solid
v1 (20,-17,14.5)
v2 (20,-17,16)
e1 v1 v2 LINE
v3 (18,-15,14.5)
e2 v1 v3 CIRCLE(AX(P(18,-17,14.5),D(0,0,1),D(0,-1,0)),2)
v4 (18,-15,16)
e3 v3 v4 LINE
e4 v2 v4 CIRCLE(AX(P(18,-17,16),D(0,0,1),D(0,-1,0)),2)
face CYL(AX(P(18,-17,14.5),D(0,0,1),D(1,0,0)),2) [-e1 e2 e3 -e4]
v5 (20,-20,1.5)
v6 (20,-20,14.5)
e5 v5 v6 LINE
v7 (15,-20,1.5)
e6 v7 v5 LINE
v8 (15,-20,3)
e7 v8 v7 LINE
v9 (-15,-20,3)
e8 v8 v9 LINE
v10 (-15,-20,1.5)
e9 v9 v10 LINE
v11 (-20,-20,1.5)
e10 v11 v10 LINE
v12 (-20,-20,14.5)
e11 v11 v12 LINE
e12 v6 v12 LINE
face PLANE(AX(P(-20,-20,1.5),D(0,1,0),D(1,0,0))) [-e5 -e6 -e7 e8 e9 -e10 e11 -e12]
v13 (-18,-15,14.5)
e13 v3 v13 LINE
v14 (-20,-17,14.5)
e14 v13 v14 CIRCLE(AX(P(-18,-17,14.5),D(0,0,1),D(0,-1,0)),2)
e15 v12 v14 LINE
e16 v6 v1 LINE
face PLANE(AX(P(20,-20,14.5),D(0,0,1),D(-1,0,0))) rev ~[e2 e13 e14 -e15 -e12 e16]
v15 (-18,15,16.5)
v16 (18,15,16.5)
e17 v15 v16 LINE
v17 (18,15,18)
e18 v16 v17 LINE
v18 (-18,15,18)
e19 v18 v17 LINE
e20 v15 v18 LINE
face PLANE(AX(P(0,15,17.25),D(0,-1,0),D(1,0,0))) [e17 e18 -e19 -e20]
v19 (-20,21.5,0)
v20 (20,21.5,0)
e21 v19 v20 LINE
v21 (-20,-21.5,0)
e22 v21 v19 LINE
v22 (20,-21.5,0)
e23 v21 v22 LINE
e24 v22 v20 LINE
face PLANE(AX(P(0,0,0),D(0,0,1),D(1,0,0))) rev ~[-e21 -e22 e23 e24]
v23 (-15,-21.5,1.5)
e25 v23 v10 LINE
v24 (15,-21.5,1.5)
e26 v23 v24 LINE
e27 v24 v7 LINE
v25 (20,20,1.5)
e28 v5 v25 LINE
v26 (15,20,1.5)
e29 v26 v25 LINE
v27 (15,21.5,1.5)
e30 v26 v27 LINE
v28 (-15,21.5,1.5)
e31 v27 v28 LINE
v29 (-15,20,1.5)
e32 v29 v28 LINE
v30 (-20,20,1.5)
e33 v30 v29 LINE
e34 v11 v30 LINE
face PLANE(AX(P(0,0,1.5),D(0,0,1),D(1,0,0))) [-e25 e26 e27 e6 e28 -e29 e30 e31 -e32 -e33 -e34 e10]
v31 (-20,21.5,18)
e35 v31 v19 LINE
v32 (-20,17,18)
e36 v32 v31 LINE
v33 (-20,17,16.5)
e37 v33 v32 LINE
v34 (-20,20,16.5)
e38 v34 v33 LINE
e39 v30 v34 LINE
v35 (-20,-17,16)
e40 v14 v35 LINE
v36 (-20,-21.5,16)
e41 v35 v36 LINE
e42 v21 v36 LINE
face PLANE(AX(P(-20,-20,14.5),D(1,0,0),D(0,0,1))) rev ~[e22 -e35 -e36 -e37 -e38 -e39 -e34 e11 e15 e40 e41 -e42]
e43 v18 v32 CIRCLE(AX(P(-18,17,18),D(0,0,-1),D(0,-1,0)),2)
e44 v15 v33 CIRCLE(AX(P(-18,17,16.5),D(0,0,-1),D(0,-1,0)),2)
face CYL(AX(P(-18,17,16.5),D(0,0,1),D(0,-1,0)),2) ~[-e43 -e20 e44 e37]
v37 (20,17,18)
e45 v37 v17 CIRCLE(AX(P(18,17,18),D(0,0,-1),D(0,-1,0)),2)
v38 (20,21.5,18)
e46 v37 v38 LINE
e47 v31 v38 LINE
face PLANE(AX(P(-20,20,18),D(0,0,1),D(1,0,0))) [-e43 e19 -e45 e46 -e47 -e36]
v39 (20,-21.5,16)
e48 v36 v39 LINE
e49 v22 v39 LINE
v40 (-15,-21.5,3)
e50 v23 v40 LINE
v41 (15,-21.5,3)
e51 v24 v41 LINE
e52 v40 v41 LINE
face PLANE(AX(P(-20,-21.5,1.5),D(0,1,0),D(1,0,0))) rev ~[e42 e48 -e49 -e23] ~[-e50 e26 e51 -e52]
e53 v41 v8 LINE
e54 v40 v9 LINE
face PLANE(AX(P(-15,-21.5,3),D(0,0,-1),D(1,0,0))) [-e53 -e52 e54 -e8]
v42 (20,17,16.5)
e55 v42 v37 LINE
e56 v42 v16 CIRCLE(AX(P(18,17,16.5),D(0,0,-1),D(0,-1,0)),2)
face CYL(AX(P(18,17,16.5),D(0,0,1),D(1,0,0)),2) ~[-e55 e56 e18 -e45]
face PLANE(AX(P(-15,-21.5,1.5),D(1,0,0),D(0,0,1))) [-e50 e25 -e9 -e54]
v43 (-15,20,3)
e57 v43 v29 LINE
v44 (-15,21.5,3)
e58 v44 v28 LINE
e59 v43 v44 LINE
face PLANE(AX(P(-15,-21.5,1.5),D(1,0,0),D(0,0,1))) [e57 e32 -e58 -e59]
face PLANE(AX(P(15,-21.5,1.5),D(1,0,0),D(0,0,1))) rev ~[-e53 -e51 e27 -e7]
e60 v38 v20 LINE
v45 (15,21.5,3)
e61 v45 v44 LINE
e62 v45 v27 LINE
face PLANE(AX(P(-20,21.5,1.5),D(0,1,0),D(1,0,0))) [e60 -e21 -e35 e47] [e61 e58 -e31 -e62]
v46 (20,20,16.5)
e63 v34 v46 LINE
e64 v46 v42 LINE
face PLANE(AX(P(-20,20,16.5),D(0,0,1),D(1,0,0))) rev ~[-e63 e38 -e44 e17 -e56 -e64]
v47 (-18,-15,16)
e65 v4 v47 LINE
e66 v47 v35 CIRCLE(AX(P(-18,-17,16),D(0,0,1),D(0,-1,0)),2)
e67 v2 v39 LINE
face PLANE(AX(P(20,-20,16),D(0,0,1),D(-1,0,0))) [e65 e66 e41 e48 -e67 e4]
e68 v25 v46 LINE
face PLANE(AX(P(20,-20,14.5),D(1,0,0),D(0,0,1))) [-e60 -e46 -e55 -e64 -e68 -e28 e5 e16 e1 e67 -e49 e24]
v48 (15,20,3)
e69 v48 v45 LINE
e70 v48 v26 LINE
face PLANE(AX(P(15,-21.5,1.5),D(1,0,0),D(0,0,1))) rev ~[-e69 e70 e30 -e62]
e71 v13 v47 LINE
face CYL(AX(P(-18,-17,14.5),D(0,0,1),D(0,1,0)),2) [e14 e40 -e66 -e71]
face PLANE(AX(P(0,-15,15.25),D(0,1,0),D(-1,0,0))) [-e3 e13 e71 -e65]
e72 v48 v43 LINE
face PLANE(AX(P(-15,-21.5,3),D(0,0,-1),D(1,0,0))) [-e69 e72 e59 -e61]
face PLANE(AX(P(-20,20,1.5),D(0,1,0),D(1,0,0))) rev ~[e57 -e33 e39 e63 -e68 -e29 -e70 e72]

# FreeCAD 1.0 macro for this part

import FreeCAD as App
import Part
import Sketcher
from FreeCAD import Vector


def edges_at(feature, points):
    """Names of the edges that pass closest to the given points."""
    edges = feature.Shape.Edges
    near = lambda p: min(range(len(edges)), key=lambda i: edges[i].distToShape(Part.Vertex(*p))[0])
    return sorted({f"Edge{near(p) + 1}" for p in points})

doc = App.newDocument("Part")
params = doc.addObject("Spreadsheet::Sheet", "Params")
for row, (alias, value) in enumerate([
    ("sketch1_width", "40 mm"),
    ("sketch1_height", "43 mm"),
    ("pad1_length", "1.5 mm"),
    ("sketch2_width", "40 mm"),
    ("sketch2_height", "1.5 mm"),
    ("pad2_length", "14.5 mm"),
    ("sketch3_width", "40 mm"),
    ("sketch3_height", "1.5 mm"),
    ("pad3_length", "16.5 mm"),
    ("sketch4_width", "40 mm"),
    ("sketch4_height", "1.5 mm"),
    ("pad4_length", "5 mm"),
    ("sketch5_width", "40 mm"),
    ("sketch5_height", "1.5 mm"),
    ("pad5_length", "5 mm"),
    ("sketch6_width", "30 mm"),
    ("sketch6_height", "1.5 mm"),
    ("pocket1_length", "44 mm"),
    ("fillet_radius", "2 mm"),
], start=1):
    params.set(f"A{row}", alias)
    params.set(f"B{row}", "=" + value)
    params.setAlias(f"B{row}", alias)

body = doc.addObject("PartDesign::Body", "Body")

sketch1 = body.newObject("Sketcher::SketchObject", "Sketch")
sketch1.AttachmentSupport = (doc.getObject("XY_Plane"), [""])
sketch1.MapMode = "FlatFace"
sketch1.addGeometry(Part.LineSegment(Vector(-20, 21.5, 0), Vector(-20, -21.5, 0)), False)
sketch1.addGeometry(Part.LineSegment(Vector(-20, -21.5, 0), Vector(20, -21.5, 0)), False)
sketch1.addGeometry(Part.LineSegment(Vector(20, -21.5, 0), Vector(20, 21.5, 0)), False)
sketch1.addGeometry(Part.LineSegment(Vector(20, 21.5, 0), Vector(-20, 21.5, 0)), False)
sketch1.addConstraint(Sketcher.Constraint("Coincident", 0, 2, 1, 1))
sketch1.addConstraint(Sketcher.Constraint("Coincident", 1, 2, 2, 1))
sketch1.addConstraint(Sketcher.Constraint("Coincident", 2, 2, 3, 1))
sketch1.addConstraint(Sketcher.Constraint("Coincident", 3, 2, 0, 1))
sketch1.addConstraint(Sketcher.Constraint("Vertical", 0))
sketch1.addConstraint(Sketcher.Constraint("Horizontal", 1))
sketch1.addConstraint(Sketcher.Constraint("Vertical", 2))
sketch1.addConstraint(Sketcher.Constraint("Horizontal", 3))
sketch1.addConstraint(Sketcher.Constraint("Symmetric", 0, 2, 2, 2, -1, 1))
sketch1.addConstraint(Sketcher.Constraint("DistanceX", 1, 1, 1, 2, 40.0))
sketch1.addConstraint(Sketcher.Constraint("DistanceY", 0, 2, 0, 1, 43.0))
sketch1.setExpression("Constraints[9]", "Params.sketch1_width")
sketch1.setExpression("Constraints[10]", "Params.sketch1_height")
pad1 = body.newObject("PartDesign::Pad", "Pad")
pad1.Profile = sketch1
pad1.setExpression("Length", "Params.pad1_length")

sketch2 = body.newObject("Sketcher::SketchObject", "Sketch001")
sketch2.AttachmentSupport = (doc.getObject("XY_Plane"), [""])
sketch2.MapMode = "FlatFace"
sketch2.AttachmentOffset = App.Placement(Vector(0, 0, 1.5), App.Rotation())
sketch2.addGeometry(Part.LineSegment(Vector(-20, -20, 0), Vector(-20, -21.5, 0)), False)
sketch2.addGeometry(Part.LineSegment(Vector(-20, -21.5, 0), Vector(20, -21.5, 0)), False)
sketch2.addGeometry(Part.LineSegment(Vector(20, -21.5, 0), Vector(20, -20, 0)), False)
sketch2.addGeometry(Part.LineSegment(Vector(20, -20, 0), Vector(-20, -20, 0)), False)
sketch2.addConstraint(Sketcher.Constraint("Coincident", 0, 2, 1, 1))
sketch2.addConstraint(Sketcher.Constraint("Coincident", 1, 2, 2, 1))
sketch2.addConstraint(Sketcher.Constraint("Coincident", 2, 2, 3, 1))
sketch2.addConstraint(Sketcher.Constraint("Coincident", 3, 2, 0, 1))
sketch2.addConstraint(Sketcher.Constraint("Vertical", 0))
sketch2.addConstraint(Sketcher.Constraint("Horizontal", 1))
sketch2.addConstraint(Sketcher.Constraint("Vertical", 2))
sketch2.addConstraint(Sketcher.Constraint("Horizontal", 3))
sketch2.addConstraint(Sketcher.Constraint("DistanceX", 1, 1, 1, 2, 40.0))
sketch2.addConstraint(Sketcher.Constraint("DistanceY", 0, 2, 0, 1, 1.5))
sketch2.addConstraint(Sketcher.Constraint("DistanceX", 0, 2, -1, 1, 20.0))
sketch2.addConstraint(Sketcher.Constraint("DistanceY", 2, 2, -1, 1, 20.0))
sketch2.setExpression("Constraints[8]", "Params.sketch2_width")
sketch2.setExpression("Constraints[9]", "Params.sketch2_height")
pad2 = body.newObject("PartDesign::Pad", "Pad001")
pad2.Profile = sketch2
pad2.setExpression("Length", "Params.pad2_length")

sketch3 = body.newObject("Sketcher::SketchObject", "Sketch002")
sketch3.AttachmentSupport = (doc.getObject("XY_Plane"), [""])
sketch3.MapMode = "FlatFace"
sketch3.AttachmentOffset = App.Placement(Vector(0, 0, 1.5), App.Rotation())
sketch3.addGeometry(Part.LineSegment(Vector(-20, 21.5, 0), Vector(-20, 20, 0)), False)
sketch3.addGeometry(Part.LineSegment(Vector(-20, 20, 0), Vector(20, 20, 0)), False)
sketch3.addGeometry(Part.LineSegment(Vector(20, 20, 0), Vector(20, 21.5, 0)), False)
sketch3.addGeometry(Part.LineSegment(Vector(20, 21.5, 0), Vector(-20, 21.5, 0)), False)
sketch3.addConstraint(Sketcher.Constraint("Coincident", 0, 2, 1, 1))
sketch3.addConstraint(Sketcher.Constraint("Coincident", 1, 2, 2, 1))
sketch3.addConstraint(Sketcher.Constraint("Coincident", 2, 2, 3, 1))
sketch3.addConstraint(Sketcher.Constraint("Coincident", 3, 2, 0, 1))
sketch3.addConstraint(Sketcher.Constraint("Vertical", 0))
sketch3.addConstraint(Sketcher.Constraint("Horizontal", 1))
sketch3.addConstraint(Sketcher.Constraint("Vertical", 2))
sketch3.addConstraint(Sketcher.Constraint("Horizontal", 3))
sketch3.addConstraint(Sketcher.Constraint("DistanceX", 1, 1, 1, 2, 40.0))
sketch3.addConstraint(Sketcher.Constraint("DistanceY", 0, 2, 0, 1, 1.5))
sketch3.addConstraint(Sketcher.Constraint("DistanceX", 0, 2, -1, 1, 20.0))
sketch3.addConstraint(Sketcher.Constraint("DistanceY", -1, 1, 0, 2, 20.0))
sketch3.setExpression("Constraints[8]", "Params.sketch3_width")
sketch3.setExpression("Constraints[9]", "Params.sketch3_height")
pad3 = body.newObject("PartDesign::Pad", "Pad002")
pad3.Profile = sketch3
pad3.setExpression("Length", "Params.pad3_length")

sketch4 = body.newObject("Sketcher::SketchObject", "Sketch003")
sketch4.AttachmentSupport = (doc.getObject("XZ_Plane"), [""])
sketch4.MapMode = "FlatFace"
sketch4.AttachmentOffset = App.Placement(Vector(0, 0, -20), App.Rotation())
sketch4.addGeometry(Part.LineSegment(Vector(-20, 18, 0), Vector(-20, 16.5, 0)), False)
sketch4.addGeometry(Part.LineSegment(Vector(-20, 16.5, 0), Vector(20, 16.5, 0)), False)
sketch4.addGeometry(Part.LineSegment(Vector(20, 16.5, 0), Vector(20, 18, 0)), False)
sketch4.addGeometry(Part.LineSegment(Vector(20, 18, 0), Vector(-20, 18, 0)), False)
sketch4.addConstraint(Sketcher.Constraint("Coincident", 0, 2, 1, 1))
sketch4.addConstraint(Sketcher.Constraint("Coincident", 1, 2, 2, 1))
sketch4.addConstraint(Sketcher.Constraint("Coincident", 2, 2, 3, 1))
sketch4.addConstraint(Sketcher.Constraint("Coincident", 3, 2, 0, 1))
sketch4.addConstraint(Sketcher.Constraint("Vertical", 0))
sketch4.addConstraint(Sketcher.Constraint("Horizontal", 1))
sketch4.addConstraint(Sketcher.Constraint("Vertical", 2))
sketch4.addConstraint(Sketcher.Constraint("Horizontal", 3))
sketch4.addConstraint(Sketcher.Constraint("DistanceX", 1, 1, 1, 2, 40.0))
sketch4.addConstraint(Sketcher.Constraint("DistanceY", 0, 2, 0, 1, 1.5))
sketch4.addConstraint(Sketcher.Constraint("DistanceX", 0, 2, -1, 1, 20.0))
sketch4.addConstraint(Sketcher.Constraint("DistanceY", -1, 1, 2, 2, 18.0))
sketch4.setExpression("Constraints[8]", "Params.sketch4_width")
sketch4.setExpression("Constraints[9]", "Params.sketch4_height")
pad4 = body.newObject("PartDesign::Pad", "Pad003")
pad4.Profile = sketch4
pad4.setExpression("Length", "Params.pad4_length")

sketch5 = body.newObject("Sketcher::SketchObject", "Sketch004")
sketch5.AttachmentSupport = (doc.getObject("XZ_Plane"), [""])
sketch5.MapMode = "FlatFace"
sketch5.AttachmentOffset = App.Placement(Vector(0, 0, 20), App.Rotation())
sketch5.addGeometry(Part.LineSegment(Vector(20, 16, 0), Vector(20, 14.5, 0)), False)
sketch5.addGeometry(Part.LineSegment(Vector(20, 14.5, 0), Vector(-20, 14.5, 0)), False)
sketch5.addGeometry(Part.LineSegment(Vector(-20, 14.5, 0), Vector(-20, 16, 0)), False)
sketch5.addGeometry(Part.LineSegment(Vector(-20, 16, 0), Vector(20, 16, 0)), False)
sketch5.addConstraint(Sketcher.Constraint("Coincident", 0, 2, 1, 1))
sketch5.addConstraint(Sketcher.Constraint("Coincident", 1, 2, 2, 1))
sketch5.addConstraint(Sketcher.Constraint("Coincident", 2, 2, 3, 1))
sketch5.addConstraint(Sketcher.Constraint("Coincident", 3, 2, 0, 1))
sketch5.addConstraint(Sketcher.Constraint("Vertical", 0))
sketch5.addConstraint(Sketcher.Constraint("Horizontal", 1))
sketch5.addConstraint(Sketcher.Constraint("Vertical", 2))
sketch5.addConstraint(Sketcher.Constraint("Horizontal", 3))
sketch5.addConstraint(Sketcher.Constraint("DistanceX", 1, 2, 1, 1, 40.0))
sketch5.addConstraint(Sketcher.Constraint("DistanceY", 0, 2, 0, 1, 1.5))
sketch5.addConstraint(Sketcher.Constraint("DistanceX", -1, 1, 0, 2, 20.0))
sketch5.addConstraint(Sketcher.Constraint("DistanceY", -1, 1, 2, 2, 16.0))
sketch5.setExpression("Constraints[8]", "Params.sketch5_width")
sketch5.setExpression("Constraints[9]", "Params.sketch5_height")
pad5 = body.newObject("PartDesign::Pad", "Pad004")
pad5.Profile = sketch5
pad5.setExpression("Length", "Params.pad5_length")
pad5.Reversed = True

sketch6 = body.newObject("Sketcher::SketchObject", "Sketch005")
sketch6.AttachmentSupport = (doc.getObject("XZ_Plane"), [""])
sketch6.MapMode = "FlatFace"
sketch6.AttachmentOffset = App.Placement(Vector(0, 0, 21.5), App.Rotation())
sketch6.addGeometry(Part.LineSegment(Vector(-15, 3, 0), Vector(-15, 1.5, 0)), False)
sketch6.addGeometry(Part.LineSegment(Vector(-15, 1.5, 0), Vector(15, 1.5, 0)), False)
sketch6.addGeometry(Part.LineSegment(Vector(15, 1.5, 0), Vector(15, 3, 0)), False)
sketch6.addGeometry(Part.LineSegment(Vector(15, 3, 0), Vector(-15, 3, 0)), False)
sketch6.addConstraint(Sketcher.Constraint("Coincident", 0, 2, 1, 1))
sketch6.addConstraint(Sketcher.Constraint("Coincident", 1, 2, 2, 1))
sketch6.addConstraint(Sketcher.Constraint("Coincident", 2, 2, 3, 1))
sketch6.addConstraint(Sketcher.Constraint("Coincident", 3, 2, 0, 1))
sketch6.addConstraint(Sketcher.Constraint("Vertical", 0))
sketch6.addConstraint(Sketcher.Constraint("Horizontal", 1))
sketch6.addConstraint(Sketcher.Constraint("Vertical", 2))
sketch6.addConstraint(Sketcher.Constraint("Horizontal", 3))
sketch6.addConstraint(Sketcher.Constraint("DistanceX", 1, 1, 1, 2, 30.0))
sketch6.addConstraint(Sketcher.Constraint("DistanceY", 0, 2, 0, 1, 1.5))
sketch6.addConstraint(Sketcher.Constraint("DistanceX", 0, 2, -1, 1, 15.0))
sketch6.addConstraint(Sketcher.Constraint("DistanceY", -1, 1, 2, 2, 3.0))
sketch6.setExpression("Constraints[8]", "Params.sketch6_width")
sketch6.setExpression("Constraints[9]", "Params.sketch6_height")
pocket1 = body.newObject("PartDesign::Pocket", "Pocket")
pocket1.Profile = sketch6
pocket1.setExpression("Length", "Params.pocket1_length")
doc.recompute()

fillet = body.newObject("PartDesign::Fillet", "Fillet")
fillet.Base = (pocket1, edges_at(pocket1, [
    (20, 15, 17.25),
    (20, -15, 15.25),
    (-20, 15, 17.25),
    (-20, -15, 15.25),
]))
fillet.setExpression("Radius", "Params.fillet_radius")

doc.recompute()
